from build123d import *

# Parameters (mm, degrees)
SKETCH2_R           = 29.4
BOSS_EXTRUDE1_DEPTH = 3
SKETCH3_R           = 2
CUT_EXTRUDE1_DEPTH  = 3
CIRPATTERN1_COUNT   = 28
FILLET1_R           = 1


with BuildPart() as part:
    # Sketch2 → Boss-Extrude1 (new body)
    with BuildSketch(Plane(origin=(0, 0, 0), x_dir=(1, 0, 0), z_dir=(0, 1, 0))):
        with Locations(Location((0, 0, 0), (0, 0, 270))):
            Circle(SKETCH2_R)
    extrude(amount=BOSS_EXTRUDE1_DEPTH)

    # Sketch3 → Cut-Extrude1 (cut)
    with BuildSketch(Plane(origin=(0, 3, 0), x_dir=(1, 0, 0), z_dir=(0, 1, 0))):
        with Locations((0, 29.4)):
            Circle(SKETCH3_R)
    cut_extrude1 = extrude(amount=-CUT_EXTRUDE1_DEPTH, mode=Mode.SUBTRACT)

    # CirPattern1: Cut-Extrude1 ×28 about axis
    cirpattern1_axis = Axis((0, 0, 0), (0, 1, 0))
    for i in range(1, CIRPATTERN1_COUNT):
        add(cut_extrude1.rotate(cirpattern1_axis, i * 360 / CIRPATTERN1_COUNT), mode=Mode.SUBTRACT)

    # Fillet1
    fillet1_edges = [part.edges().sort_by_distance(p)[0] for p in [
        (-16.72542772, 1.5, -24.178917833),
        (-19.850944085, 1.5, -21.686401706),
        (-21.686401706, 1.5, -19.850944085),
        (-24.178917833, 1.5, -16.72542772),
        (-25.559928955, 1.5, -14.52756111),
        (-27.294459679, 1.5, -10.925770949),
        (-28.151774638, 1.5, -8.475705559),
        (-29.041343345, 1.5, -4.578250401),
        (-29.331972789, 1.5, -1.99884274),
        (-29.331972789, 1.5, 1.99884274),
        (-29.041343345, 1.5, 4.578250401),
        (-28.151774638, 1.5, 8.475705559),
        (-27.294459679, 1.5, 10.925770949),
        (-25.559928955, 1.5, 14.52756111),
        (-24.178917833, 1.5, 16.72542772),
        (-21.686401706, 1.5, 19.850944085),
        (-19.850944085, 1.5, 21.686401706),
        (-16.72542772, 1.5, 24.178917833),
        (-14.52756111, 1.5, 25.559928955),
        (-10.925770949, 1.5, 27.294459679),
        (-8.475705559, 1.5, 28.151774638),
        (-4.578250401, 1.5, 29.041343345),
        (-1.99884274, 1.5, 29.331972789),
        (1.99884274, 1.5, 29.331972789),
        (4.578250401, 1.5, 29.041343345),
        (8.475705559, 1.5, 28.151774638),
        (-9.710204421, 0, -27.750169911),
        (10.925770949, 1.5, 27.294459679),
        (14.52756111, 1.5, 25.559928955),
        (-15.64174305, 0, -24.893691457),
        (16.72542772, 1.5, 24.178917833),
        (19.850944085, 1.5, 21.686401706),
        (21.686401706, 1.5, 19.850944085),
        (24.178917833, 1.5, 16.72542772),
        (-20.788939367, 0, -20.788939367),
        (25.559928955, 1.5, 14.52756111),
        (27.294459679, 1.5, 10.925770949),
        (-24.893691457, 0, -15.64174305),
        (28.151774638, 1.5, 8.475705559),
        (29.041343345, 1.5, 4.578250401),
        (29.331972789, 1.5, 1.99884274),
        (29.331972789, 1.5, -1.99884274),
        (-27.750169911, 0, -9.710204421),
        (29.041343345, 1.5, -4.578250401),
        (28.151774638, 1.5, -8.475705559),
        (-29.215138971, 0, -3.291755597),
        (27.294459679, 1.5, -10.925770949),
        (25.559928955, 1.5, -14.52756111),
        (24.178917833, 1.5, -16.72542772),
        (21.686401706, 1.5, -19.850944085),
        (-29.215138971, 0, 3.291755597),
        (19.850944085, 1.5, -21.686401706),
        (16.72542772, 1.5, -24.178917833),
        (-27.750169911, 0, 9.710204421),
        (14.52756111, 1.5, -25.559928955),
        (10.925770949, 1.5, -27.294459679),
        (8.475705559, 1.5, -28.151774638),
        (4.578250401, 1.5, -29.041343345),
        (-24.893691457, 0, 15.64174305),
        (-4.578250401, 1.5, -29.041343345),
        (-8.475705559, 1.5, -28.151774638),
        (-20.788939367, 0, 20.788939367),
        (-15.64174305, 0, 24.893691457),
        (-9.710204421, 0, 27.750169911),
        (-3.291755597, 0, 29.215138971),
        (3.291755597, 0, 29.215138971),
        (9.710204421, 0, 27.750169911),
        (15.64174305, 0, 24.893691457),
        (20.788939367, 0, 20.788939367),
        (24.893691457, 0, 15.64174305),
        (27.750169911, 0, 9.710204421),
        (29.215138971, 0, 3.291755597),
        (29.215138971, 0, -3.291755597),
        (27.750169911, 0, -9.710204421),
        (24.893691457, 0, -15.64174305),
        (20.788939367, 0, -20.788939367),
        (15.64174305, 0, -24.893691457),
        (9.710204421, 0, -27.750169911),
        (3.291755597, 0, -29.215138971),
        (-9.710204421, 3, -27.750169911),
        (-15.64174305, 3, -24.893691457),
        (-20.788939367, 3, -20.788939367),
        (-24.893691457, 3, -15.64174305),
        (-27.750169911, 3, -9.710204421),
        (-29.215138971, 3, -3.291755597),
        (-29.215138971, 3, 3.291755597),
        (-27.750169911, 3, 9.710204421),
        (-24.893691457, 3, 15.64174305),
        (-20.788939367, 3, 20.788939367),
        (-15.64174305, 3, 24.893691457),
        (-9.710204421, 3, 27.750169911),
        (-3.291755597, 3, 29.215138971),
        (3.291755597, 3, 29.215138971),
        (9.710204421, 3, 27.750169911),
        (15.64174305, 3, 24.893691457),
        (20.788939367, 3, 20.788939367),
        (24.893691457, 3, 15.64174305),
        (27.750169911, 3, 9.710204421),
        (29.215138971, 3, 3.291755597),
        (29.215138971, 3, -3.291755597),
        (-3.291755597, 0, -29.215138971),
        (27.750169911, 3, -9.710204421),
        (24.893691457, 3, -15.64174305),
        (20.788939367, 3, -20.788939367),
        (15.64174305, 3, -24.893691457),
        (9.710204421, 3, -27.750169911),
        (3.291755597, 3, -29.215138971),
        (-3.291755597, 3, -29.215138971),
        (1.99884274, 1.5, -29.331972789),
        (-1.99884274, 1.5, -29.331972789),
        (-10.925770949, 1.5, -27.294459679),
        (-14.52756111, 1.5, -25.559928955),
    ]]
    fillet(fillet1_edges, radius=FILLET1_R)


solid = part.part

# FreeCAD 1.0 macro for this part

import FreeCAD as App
import Part
import Sketcher
Q = App.Units.Quantity


def edges_at(feature, points):
    """Names of the edges that pass closest to the given points."""
    edges = feature.Shape.Edges
    near = lambda p: min(range(len(edges)), key=lambda i: edges[i].distToShape(Part.Vertex(*p))[0])
    return sorted({f"Edge{near(p) + 1}" for p in points})

doc = App.newDocument("Part")
params = doc.addObject("Spreadsheet::Sheet", "Params")
for row, (alias, value) in enumerate([
    ("sketch1_diameter", "58.8 mm"),
    ("pad1_length", "3 mm"),
    ("sketch2_diameter", "4 mm"),
    ("pocket1_length", "3 mm"),
    ("fillet_radius", "1 mm"),
], start=1):
    params.set(f"A{row}", alias)
    params.set(f"B{row}", "=" + value)
    params.setAlias(f"B{row}", alias)

body = doc.addObject("PartDesign::Body", "Body")

sketch1 = doc.addObject("Sketcher::SketchObject", "Sketch")
body.addObject(sketch1)
sketch1.AttachmentSupport = (doc.XZ_Plane, [""])
sketch1.MapMode = "FlatFace"
sketch1.addGeometry(Part.Circle(App.Vector(0, 0, 0), App.Vector(0, 0, 1), 29), False)
sketch1.addConstraint(Sketcher.Constraint("Coincident", 0, 3, -1, 1))
sketch1.addConstraint(Sketcher.Constraint("Diameter", 0, Q("58.8 mm")))
sketch1.setExpression("Constraints[1]", "Params.sketch1_diameter")
pad1 = doc.addObject("PartDesign::Pad", "Pad")
body.addObject(pad1)
pad1.Profile = sketch1
pad1.setExpression("Length", "Params.pad1_length")
pad1.Reversed = True

sketch2 = doc.addObject("Sketcher::SketchObject", "Sketch001")
body.addObject(sketch2)
sketch2.AttachmentSupport = (doc.XZ_Plane, [""])
sketch2.MapMode = "FlatFace"
sketch2.AttachmentOffset = App.Placement(App.Vector(0, 0, -3), App.Rotation())
sketch2.addGeometry(Part.Circle(App.Vector(0, -29.4, 0), App.Vector(0, 0, 1), 2), False)
sketch2.addConstraint(Sketcher.Constraint("PointOnObject", 0, 3, -2))
sketch2.addConstraint(Sketcher.Constraint("Diameter", 0, Q("4 mm")))
sketch2.addConstraint(Sketcher.Constraint("DistanceY", 0, 3, -1, 1, Q("29.4 mm")))
sketch2.setExpression("Constraints[1]", "Params.sketch2_diameter")
pocket1 = doc.addObject("PartDesign::Pocket", "Pocket")
body.addObject(pocket1)
pocket1.Profile = sketch2
pocket1.setExpression("Length", "Params.pocket1_length")
pocket1.Reversed = True
doc.recompute()

polarpattern = doc.addObject("PartDesign::PolarPattern", "PolarPattern")
body.addObject(polarpattern)
polarpattern.Originals = [pocket1]
polarpattern.Axis = (doc.Y_Axis, [""])
polarpattern.Angle = 360
polarpattern.Occurrences = 28
body.Tip = polarpattern
doc.recompute()

fillet = doc.addObject("PartDesign::Fillet", "Fillet")
body.addObject(fillet)
fillet.Base = (polarpattern, edges_at(polarpattern, [
    (-16.725, 1.5, -24.179),
    (-19.851, 1.5, -21.686),
    (-21.686, 1.5, -19.851),
    (-24.179, 1.5, -16.725),
    (-25.56, 1.5, -14.528),
    (-27.294, 1.5, -10.926),
    (-28.152, 1.5, -8.476),
    (-29.041, 1.5, -4.578),
    (-29.332, 1.5, -1.999),
    (-29.332, 1.5, 1.999),
    (-29.041, 1.5, 4.578),
    (-28.152, 1.5, 8.476),
    (-27.294, 1.5, 10.926),
    (-25.56, 1.5, 14.528),
    (-24.179, 1.5, 16.725),
    (-21.686, 1.5, 19.851),
    (-19.851, 1.5, 21.686),
    (-16.725, 1.5, 24.179),
    (-14.528, 1.5, 25.56),
    (-10.926, 1.5, 27.294),
    (-8.476, 1.5, 28.152),
    (-4.578, 1.5, 29.041),
    (-1.999, 1.5, 29.332),
    (1.999, 1.5, 29.332),
    (4.578, 1.5, 29.041),
    (8.476, 1.5, 28.152),
    (-9.71, 0, -27.75),
    (10.926, 1.5, 27.294),
    (14.528, 1.5, 25.56),
    (-15.642, 0, -24.894),
    (16.725, 1.5, 24.179),
    (19.851, 1.5, 21.686),
    (21.686, 1.5, 19.851),
    (24.179, 1.5, 16.725),
    (-20.789, 0, -20.789),
    (25.56, 1.5, 14.528),
    (27.294, 1.5, 10.926),
    (-24.894, 0, -15.642),
    (28.152, 1.5, 8.476),
    (29.041, 1.5, 4.578),
    (29.332, 1.5, 1.999),
    (29.332, 1.5, -1.999),
    (-27.75, 0, -9.71),
    (29.041, 1.5, -4.578),
    (28.152, 1.5, -8.476),
    (-29.215, 0, -3.292),
    (27.294, 1.5, -10.926),
    (25.56, 1.5, -14.528),
    (24.179, 1.5, -16.725),
    (21.686, 1.5, -19.851),
    (-29.215, 0, 3.292),
    (19.851, 1.5, -21.686),
    (16.725, 1.5, -24.179),
    (-27.75, 0, 9.71),
    (14.528, 1.5, -25.56),
    (10.926, 1.5, -27.294),
    (8.476, 1.5, -28.152),
    (4.578, 1.5, -29.041),
    (-24.894, 0, 15.642),
    (-4.578, 1.5, -29.041),
    (-8.476, 1.5, -28.152),
    (-20.789, 0, 20.789),
    (-15.642, 0, 24.894),
    (-9.71, 0, 27.75),
    (-3.292, 0, 29.215),
    (3.292, 0, 29.215),
    (9.71, 0, 27.75),
    (15.642, 0, 24.894),
    (20.789, 0, 20.789),
    (24.894, 0, 15.642),
    (27.75, 0, 9.71),
    (29.215, 0, 3.292),
    (29.215, 0, -3.292),
    (27.75, 0, -9.71),
    (24.894, 0, -15.642),
    (20.789, 0, -20.789),
    (15.642, 0, -24.894),
    (9.71, 0, -27.75),
    (3.292, 0, -29.215),
    (-9.71, 3, -27.75),
    (-15.642, 3, -24.894),
    (-20.789, 3, -20.789),
    (-24.894, 3, -15.642),
    (-27.75, 3, -9.71),
    (-29.215, 3, -3.292),
    (-29.215, 3, 3.292),
    (-27.75, 3, 9.71),
    (-24.894, 3, 15.642),
    (-20.789, 3, 20.789),
    (-15.642, 3, 24.894),
    (-9.71, 3, 27.75),
    (-3.292, 3, 29.215),
    (3.292, 3, 29.215),
    (9.71, 3, 27.75),
    (15.642, 3, 24.894),
    (20.789, 3, 20.789),
    (24.894, 3, 15.642),
    (27.75, 3, 9.71),
    (29.215, 3, 3.292),
    (29.215, 3, -3.292),
    (-3.292, 0, -29.215),
    (27.75, 3, -9.71),
    (24.894, 3, -15.642),
    (20.789, 3, -20.789),
    (15.642, 3, -24.894),
    (9.71, 3, -27.75),
    (3.292, 3, -29.215),
    (-3.292, 3, -29.215),
    (1.999, 1.5, -29.332),
    (-1.999, 1.5, -29.332),
    (-10.926, 1.5, -27.294),
    (-14.528, 1.5, -25.56),
]))
fillet.setExpression("Radius", "Params.fillet_radius")

doc.recompute()
